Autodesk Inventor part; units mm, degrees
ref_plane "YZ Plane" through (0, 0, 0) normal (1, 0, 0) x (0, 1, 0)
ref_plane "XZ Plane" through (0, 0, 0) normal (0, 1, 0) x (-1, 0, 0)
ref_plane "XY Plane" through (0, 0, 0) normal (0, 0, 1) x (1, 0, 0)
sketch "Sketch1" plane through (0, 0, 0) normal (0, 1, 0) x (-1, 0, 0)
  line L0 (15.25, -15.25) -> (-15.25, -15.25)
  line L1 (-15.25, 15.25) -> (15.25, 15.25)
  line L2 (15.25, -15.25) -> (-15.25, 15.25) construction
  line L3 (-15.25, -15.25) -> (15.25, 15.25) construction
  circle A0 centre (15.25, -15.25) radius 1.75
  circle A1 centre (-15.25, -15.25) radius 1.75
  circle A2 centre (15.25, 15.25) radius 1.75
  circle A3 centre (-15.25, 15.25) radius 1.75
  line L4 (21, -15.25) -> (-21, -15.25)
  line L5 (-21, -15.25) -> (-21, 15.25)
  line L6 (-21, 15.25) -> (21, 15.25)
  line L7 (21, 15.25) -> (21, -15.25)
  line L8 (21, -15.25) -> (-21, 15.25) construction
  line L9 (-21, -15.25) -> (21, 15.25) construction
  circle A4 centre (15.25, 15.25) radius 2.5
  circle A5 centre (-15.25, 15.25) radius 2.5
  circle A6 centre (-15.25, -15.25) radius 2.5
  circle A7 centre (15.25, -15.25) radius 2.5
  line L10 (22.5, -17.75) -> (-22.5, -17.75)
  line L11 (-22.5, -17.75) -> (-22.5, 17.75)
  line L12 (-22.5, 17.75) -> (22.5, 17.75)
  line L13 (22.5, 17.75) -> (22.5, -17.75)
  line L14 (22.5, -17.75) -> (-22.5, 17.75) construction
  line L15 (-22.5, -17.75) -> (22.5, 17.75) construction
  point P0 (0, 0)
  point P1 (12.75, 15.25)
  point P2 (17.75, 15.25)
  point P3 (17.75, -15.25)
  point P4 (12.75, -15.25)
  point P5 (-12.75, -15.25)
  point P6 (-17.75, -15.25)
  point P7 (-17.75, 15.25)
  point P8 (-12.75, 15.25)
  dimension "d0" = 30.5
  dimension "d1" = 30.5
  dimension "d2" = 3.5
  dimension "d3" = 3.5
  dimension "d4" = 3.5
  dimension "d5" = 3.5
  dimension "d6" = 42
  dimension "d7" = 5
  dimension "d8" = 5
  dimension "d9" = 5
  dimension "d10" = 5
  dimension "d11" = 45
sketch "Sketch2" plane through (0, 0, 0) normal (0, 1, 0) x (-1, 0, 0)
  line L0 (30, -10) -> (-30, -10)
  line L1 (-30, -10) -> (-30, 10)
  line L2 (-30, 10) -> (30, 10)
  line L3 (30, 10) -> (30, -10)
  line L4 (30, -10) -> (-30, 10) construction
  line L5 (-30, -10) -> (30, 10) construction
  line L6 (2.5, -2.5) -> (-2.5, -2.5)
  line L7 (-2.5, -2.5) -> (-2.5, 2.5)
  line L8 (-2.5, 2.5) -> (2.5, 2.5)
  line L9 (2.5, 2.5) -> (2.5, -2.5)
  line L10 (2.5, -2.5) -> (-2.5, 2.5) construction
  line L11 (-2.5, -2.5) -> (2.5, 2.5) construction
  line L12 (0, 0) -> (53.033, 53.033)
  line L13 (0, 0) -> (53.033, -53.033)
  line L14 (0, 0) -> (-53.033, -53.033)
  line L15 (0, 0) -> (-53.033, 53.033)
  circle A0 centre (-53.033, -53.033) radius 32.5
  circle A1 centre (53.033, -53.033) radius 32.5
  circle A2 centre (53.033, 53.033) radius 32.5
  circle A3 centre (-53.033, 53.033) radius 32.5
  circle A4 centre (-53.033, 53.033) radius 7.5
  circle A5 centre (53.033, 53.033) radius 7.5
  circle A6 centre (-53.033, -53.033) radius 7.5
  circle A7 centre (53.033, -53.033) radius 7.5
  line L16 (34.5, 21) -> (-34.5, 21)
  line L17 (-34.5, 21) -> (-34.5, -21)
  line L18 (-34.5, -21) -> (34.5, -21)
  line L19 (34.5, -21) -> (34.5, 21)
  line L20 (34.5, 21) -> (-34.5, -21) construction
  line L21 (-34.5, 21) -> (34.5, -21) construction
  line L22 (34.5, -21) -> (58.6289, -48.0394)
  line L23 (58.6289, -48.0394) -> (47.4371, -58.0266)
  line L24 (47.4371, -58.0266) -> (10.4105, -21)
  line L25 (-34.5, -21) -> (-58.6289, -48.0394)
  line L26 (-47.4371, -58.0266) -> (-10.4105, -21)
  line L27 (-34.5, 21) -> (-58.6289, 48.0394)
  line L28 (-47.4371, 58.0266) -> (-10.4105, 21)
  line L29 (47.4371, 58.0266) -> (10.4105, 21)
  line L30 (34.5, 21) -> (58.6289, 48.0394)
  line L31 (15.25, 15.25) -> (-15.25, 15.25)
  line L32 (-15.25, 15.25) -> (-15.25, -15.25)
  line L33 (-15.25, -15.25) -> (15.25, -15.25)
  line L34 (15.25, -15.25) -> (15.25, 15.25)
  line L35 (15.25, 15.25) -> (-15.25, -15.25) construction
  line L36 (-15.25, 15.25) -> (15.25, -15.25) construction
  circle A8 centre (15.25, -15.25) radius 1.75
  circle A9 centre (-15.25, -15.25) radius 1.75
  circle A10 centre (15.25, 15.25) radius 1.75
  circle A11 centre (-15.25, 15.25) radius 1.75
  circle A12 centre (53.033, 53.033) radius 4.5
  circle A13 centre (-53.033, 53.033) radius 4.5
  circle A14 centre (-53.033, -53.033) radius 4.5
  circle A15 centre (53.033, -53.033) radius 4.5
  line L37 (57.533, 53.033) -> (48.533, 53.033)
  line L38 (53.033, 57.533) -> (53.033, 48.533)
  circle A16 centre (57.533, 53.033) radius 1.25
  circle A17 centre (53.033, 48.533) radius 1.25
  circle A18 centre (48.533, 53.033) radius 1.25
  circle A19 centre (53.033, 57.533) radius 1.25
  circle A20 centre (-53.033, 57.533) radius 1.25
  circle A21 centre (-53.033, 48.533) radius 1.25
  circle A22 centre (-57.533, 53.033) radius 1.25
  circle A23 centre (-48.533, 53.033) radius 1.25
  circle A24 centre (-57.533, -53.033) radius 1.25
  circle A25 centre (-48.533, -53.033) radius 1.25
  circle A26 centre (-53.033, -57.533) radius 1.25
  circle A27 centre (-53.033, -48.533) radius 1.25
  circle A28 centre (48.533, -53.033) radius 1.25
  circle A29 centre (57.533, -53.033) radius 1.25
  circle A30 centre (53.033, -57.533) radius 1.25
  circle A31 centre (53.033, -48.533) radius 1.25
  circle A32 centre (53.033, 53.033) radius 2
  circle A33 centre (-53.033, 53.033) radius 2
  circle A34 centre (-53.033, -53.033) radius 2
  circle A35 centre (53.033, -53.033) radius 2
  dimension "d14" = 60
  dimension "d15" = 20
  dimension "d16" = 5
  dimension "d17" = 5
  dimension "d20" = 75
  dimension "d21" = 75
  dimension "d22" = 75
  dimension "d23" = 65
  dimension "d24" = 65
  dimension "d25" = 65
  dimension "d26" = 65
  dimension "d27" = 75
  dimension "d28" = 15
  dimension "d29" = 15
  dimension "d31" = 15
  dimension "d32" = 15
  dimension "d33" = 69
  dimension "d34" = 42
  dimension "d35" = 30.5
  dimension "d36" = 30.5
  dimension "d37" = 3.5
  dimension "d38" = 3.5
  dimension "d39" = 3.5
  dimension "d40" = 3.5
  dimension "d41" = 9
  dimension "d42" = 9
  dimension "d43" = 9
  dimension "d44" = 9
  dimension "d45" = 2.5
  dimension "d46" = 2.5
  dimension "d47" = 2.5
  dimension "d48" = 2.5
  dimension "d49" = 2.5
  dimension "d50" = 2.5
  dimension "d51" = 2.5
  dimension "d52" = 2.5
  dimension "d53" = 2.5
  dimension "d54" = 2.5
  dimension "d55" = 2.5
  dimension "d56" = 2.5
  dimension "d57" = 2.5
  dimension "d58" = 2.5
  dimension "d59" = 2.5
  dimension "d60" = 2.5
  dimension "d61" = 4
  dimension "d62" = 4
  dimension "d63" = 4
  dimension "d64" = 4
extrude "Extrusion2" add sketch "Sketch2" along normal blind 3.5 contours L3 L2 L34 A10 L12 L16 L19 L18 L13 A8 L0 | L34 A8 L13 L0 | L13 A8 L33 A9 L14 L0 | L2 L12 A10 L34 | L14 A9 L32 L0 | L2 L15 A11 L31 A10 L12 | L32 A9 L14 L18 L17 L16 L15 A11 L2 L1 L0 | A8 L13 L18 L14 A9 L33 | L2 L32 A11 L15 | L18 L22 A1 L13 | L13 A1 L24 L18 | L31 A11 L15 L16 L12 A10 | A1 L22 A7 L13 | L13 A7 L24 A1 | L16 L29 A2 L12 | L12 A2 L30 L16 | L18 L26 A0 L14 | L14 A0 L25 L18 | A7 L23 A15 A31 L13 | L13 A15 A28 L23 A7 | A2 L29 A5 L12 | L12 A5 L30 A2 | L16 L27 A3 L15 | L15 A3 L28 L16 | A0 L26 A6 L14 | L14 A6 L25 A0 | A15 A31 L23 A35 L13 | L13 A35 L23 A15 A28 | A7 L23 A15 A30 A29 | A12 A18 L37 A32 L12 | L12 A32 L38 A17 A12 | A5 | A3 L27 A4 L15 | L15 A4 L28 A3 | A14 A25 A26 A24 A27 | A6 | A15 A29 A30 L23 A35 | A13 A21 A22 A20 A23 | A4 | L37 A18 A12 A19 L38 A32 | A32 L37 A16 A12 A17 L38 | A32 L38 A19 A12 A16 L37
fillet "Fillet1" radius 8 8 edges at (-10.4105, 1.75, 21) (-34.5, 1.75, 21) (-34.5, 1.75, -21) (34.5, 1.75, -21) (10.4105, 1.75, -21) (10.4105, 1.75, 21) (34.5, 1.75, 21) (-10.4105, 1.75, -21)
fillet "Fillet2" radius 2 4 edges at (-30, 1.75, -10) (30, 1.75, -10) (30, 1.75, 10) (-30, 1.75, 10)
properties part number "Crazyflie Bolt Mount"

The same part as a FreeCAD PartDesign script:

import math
import FreeCAD as App
import Part
import Sketcher
from FreeCAD import Vector


def edges_at(feature, points):
    """Names of the edges that pass closest to the given points."""
    edges = feature.Shape.Edges
    near = lambda p: min(range(len(edges)), key=lambda i: edges[i].distToShape(Part.Vertex(*p))[0])
    return sorted({f"Edge{near(p) + 1}" for p in points})

doc = App.newDocument("Part")
body = doc.addObject("PartDesign::Body", "Body")

sketch1 = body.newObject("Sketcher::SketchObject", "Sketch")
sketch1.AttachmentSupport = (doc.getObject("XZ_Plane"), [""])
sketch1.MapMode = "FlatFace"
sketch1.addGeometry([
    Part.LineSegment(Vector(-34.5, -21, 0), Vector(-34.5, 21, 0)),
    Part.LineSegment(Vector(-34.5, 21, 0), Vector(-58.6, 48, 0)),
    Part.ArcOfCircle(Part.Circle(Vector(-53, 53, 0), Vector(0, 0, 1), 7.5), math.radians(42), math.radians(222)),
    Part.LineSegment(Vector(-47.4, 58, 0), Vector(-10.4, 21, 0)),
    Part.LineSegment(Vector(-10.4, 21, 0), Vector(10.4, 21, 0)),
    Part.LineSegment(Vector(10.4, 21, 0), Vector(47.4, 58, 0)),
    Part.ArcOfCircle(Part.Circle(Vector(53, 53, 0), Vector(0, 0, 1), 7.5), math.radians(-42), math.radians(138)),
    Part.LineSegment(Vector(58.6, 48, 0), Vector(34.5, 21, 0)),
    Part.LineSegment(Vector(34.5, 21, 0), Vector(34.5, -21, 0)),
    Part.LineSegment(Vector(34.5, -21, 0), Vector(58.6, -48, 0)),
    Part.ArcOfCircle(Part.Circle(Vector(53, -53, 0), Vector(0, 0, 1), 7.5), math.radians(-138), math.radians(42)),
    Part.LineSegment(Vector(47.4, -58, 0), Vector(10.4, -21, 0)),
    Part.LineSegment(Vector(10.4, -21, 0), Vector(-10.4, -21, 0)),
    Part.LineSegment(Vector(-10.4, -21, 0), Vector(-47.4, -58, 0)),
    Part.ArcOfCircle(Part.Circle(Vector(-53, -53, 0), Vector(0, 0, 1), 7.5), math.radians(138), math.radians(318)),
    Part.LineSegment(Vector(-58.6, -48, 0), Vector(-34.5, -21, 0)),
    Part.LineSegment(Vector(-30, 10, 0), Vector(-30, -10, 0)),
    Part.LineSegment(Vector(-30, -10, 0), Vector(30, -10, 0)),
    Part.LineSegment(Vector(30, -10, 0), Vector(30, 10, 0)),
    Part.LineSegment(Vector(30, 10, 0), Vector(-30, 10, 0)),
    Part.Circle(Vector(-15.2, 15.2, 0), Vector(0, 0, 1), 1.8),
    Part.Circle(Vector(-15.2, -15.2, 0), Vector(0, 0, 1), 1.8),
    Part.Circle(Vector(15.2, 15.2, 0), Vector(0, 0, 1), 1.8),
    Part.Circle(Vector(15.2, -15.2, 0), Vector(0, 0, 1), 1.8),
    Part.Circle(Vector(-53, 48.5, 0), Vector(0, 0, 1), 1.2),
    Part.Circle(Vector(-57.5, 53, 0), Vector(0, 0, 1), 1.2),
    Part.Circle(Vector(-53, 57.5, 0), Vector(0, 0, 1), 1.2),
    Part.Circle(Vector(-48.5, 53, 0), Vector(0, 0, 1), 1.2),
    Part.Circle(Vector(-53, -48.5, 0), Vector(0, 0, 1), 1.2),
    Part.Circle(Vector(53, 48.5, 0), Vector(0, 0, 1), 1.2),
    Part.Circle(Vector(48.5, 53, 0), Vector(0, 0, 1), 1.2),
    Part.Circle(Vector(53, 57.5, 0), Vector(0, 0, 1), 1.2),
    Part.Circle(Vector(57.5, 53, 0), Vector(0, 0, 1), 1.2),
    Part.Circle(Vector(-53, 53, 0), Vector(0, 0, 1), 2),
    Part.Circle(Vector(-48.5, -53, 0), Vector(0, 0, 1), 1.2),
    Part.Circle(Vector(-53, -57.5, 0), Vector(0, 0, 1), 1.2),
    Part.Circle(Vector(-57.5, -53, 0), Vector(0, 0, 1), 1.2),
    Part.Circle(Vector(-53, -53, 0), Vector(0, 0, 1), 2),
    Part.Circle(Vector(48.5, -53, 0), Vector(0, 0, 1), 1.2),
    Part.Circle(Vector(53, -48.5, 0), Vector(0, 0, 1), 1.2),
    Part.Circle(Vector(57.5, -53, 0), Vector(0, 0, 1), 1.2),
    Part.Circle(Vector(53, -57.5, 0), Vector(0, 0, 1), 1.2),
    Part.Circle(Vector(53, 53, 0), Vector(0, 0, 1), 2),
    Part.Circle(Vector(53, -53, 0), Vector(0, 0, 1), 2),
], False)
sketch1.addConstraint([
    Sketcher.Constraint("Coincident", 0, 2, 1, 1),
    Sketcher.Constraint("Tangent", 1, 2, 2, 2),
    Sketcher.Constraint("Coincident", 2, 1, 3, 1),
    Sketcher.Constraint("Coincident", 3, 2, 4, 1),
    Sketcher.Constraint("Coincident", 4, 2, 5, 1),
    Sketcher.Constraint("Coincident", 5, 2, 6, 2),
    Sketcher.Constraint("Tangent", 6, 1, 7, 1),
    Sketcher.Constraint("Coincident", 7, 2, 8, 1),
    Sketcher.Constraint("Coincident", 8, 2, 9, 1),
    Sketcher.Constraint("Tangent", 9, 2, 10, 2),
    Sketcher.Constraint("Coincident", 10, 1, 11, 1),
    Sketcher.Constraint("Coincident", 11, 2, 12, 1),
    Sketcher.Constraint("Coincident", 12, 2, 13, 1),
    Sketcher.Constraint("Coincident", 13, 2, 14, 2),
    Sketcher.Constraint("Tangent", 14, 1, 15, 1),
    Sketcher.Constraint("Coincident", 15, 2, 0, 1),
    Sketcher.Constraint("Coincident", 16, 2, 17, 1),
    Sketcher.Constraint("Coincident", 17, 2, 18, 1),
    Sketcher.Constraint("Coincident", 18, 2, 19, 1),
    Sketcher.Constraint("Coincident", 19, 2, 16, 1),
    Sketcher.Constraint("Vertical", 0),
    Sketcher.Constraint("Horizontal", 4),
    Sketcher.Constraint("Vertical", 8),
    Sketcher.Constraint("Horizontal", 12),
    Sketcher.Constraint("Vertical", 16),
    Sketcher.Constraint("Horizontal", 17),
    Sketcher.Constraint("Vertical", 18),
    Sketcher.Constraint("Horizontal", 19),
    Sketcher.Constraint("Coincident", 33, 3, 2, 3),
    Sketcher.Constraint("Coincident", 37, 3, 14, 3),
    Sketcher.Constraint("Coincident", 42, 3, 6, 3),
    Sketcher.Constraint("Coincident", 43, 3, 10, 3),
    Sketcher.Constraint("Equal", 2, 6),
    Sketcher.Constraint("Equal", 6, 10),
    Sketcher.Constraint("Equal", 10, 14),
    Sketcher.Constraint("Equal", 20, 21),
    Sketcher.Constraint("Equal", 21, 22),
    Sketcher.Constraint("Equal", 22, 23),
    Sketcher.Constraint("Equal", 24, 25),
    Sketcher.Constraint("Equal", 25, 26),
    Sketcher.Constraint("Equal", 26, 27),
    Sketcher.Constraint("Equal", 27, 28),
    Sketcher.Constraint("Equal", 28, 29),
    Sketcher.Constraint("Equal", 29, 30),
    Sketcher.Constraint("Equal", 30, 31),
    Sketcher.Constraint("Equal", 31, 32),
    Sketcher.Constraint("Equal", 32, 34),
    Sketcher.Constraint("Equal", 34, 35),
    Sketcher.Constraint("Equal", 35, 36),
    Sketcher.Constraint("Equal", 33, 37),
    Sketcher.Constraint("Equal", 36, 38),
    Sketcher.Constraint("Equal", 38, 39),
    Sketcher.Constraint("Equal", 39, 40),
    Sketcher.Constraint("Equal", 40, 41),
    Sketcher.Constraint("Equal", 37, 42),
    Sketcher.Constraint("Equal", 42, 43),
    Sketcher.Constraint("Symmetric", 2, 3, 10, 3, -1, 1),
    Sketcher.Constraint("Symmetric", 6, 3, 14, 3, -1, 1),
    Sketcher.Constraint("Symmetric", 21, 3, 22, 3, -1, 1),
    Sketcher.Constraint("Symmetric", 20, 3, 23, 3, -1, 1),
    Sketcher.Constraint("Symmetric", 28, 3, 29, 3, -1, 1),
    Sketcher.Constraint("Symmetric", 30, 3, 34, 3, -1, 1),
    Sketcher.Constraint("Symmetric", 31, 3, 35, 3, -1, 1),
    Sketcher.Constraint("Symmetric", 32, 3, 36, 3, -1, 1),
    Sketcher.Constraint("Symmetric", 27, 3, 38, 3, -1, 1),
    Sketcher.Constraint("Symmetric", 24, 3, 39, 3, -1, 1),
    Sketcher.Constraint("Symmetric", 25, 3, 40, 3, -1, 1),
    Sketcher.Constraint("Symmetric", 26, 3, 41, 3, -1, 1),
    Sketcher.Constraint("Symmetric", 0, 2, 8, 2, -1, 1),
    Sketcher.Constraint("Symmetric", 3, 2, 11, 2, -1, 1),
    Sketcher.Constraint("Symmetric", 16, 2, 18, 2, -1, 1),
    Sketcher.Constraint("Symmetric", 2, 3, 6, 3, -2),
    Sketcher.Constraint("Symmetric", 20, 3, 22, 3, -2),
    Sketcher.Constraint("Symmetric", 24, 3, 29, 3, -2),
    Sketcher.Constraint("Symmetric", 27, 3, 30, 3, -2),
    Sketcher.Constraint("Symmetric", 26, 3, 31, 3, -2),
    Sketcher.Constraint("Symmetric", 25, 3, 32, 3, -2),
    Sketcher.Constraint("Perpendicular", 3, 5),
    Sketcher.Constraint("Perpendicular", 5, 11),
    Sketcher.Constraint("Perpendicular", 11, 13),
    Sketcher.Constraint("Parallel", 7, 15),
    Sketcher.Constraint("Horizontal", 6, 3, 25, 3),
    Sketcher.Constraint("Horizontal", 25, 3, 27, 3),
    Sketcher.Constraint("Horizontal", 0, 2, 3, 2),
    Sketcher.Constraint("Horizontal", 2, 1, 5, 2),
    Sketcher.Constraint("Horizontal", 1, 2, 6, 1),
    Sketcher.Constraint("Horizontal", 10, 1, 13, 2),
    Sketcher.Constraint("Vertical", 14, 3, 24, 3),
    Sketcher.Constraint("Vertical", 24, 3, 26, 3),
    Sketcher.Constraint("Vertical", 4, 2, 11, 2),
    Sketcher.Constraint("Diameter", 33, 4.0),
    Sketcher.Constraint("Diameter", 20, 3.5),
    Sketcher.Constraint("Diameter", 24, 2.5),
    Sketcher.Constraint("Radius", 2, 7.5),
    Sketcher.Constraint("DistanceX", 17, 1, 17, 2, 60.0),
    Sketcher.Constraint("DistanceY", 0, 1, 0, 2, 42.0),
    Sketcher.Constraint("DistanceY", 16, 2, 16, 1, 20.0),
    Sketcher.Constraint("DistanceY", 24, 3, 26, 3, 9.0),
    Sketcher.Constraint("DistanceX", 25, 3, 27, 3, 9.0),
    Sketcher.Constraint("DistanceY", 21, 3, 20, 3, 30.5),
    Sketcher.Constraint("DistanceX", 20, 3, 22, 3, 30.5),
    Sketcher.Constraint("DistanceX", 0, 2, -1, 1, 34.5),
    Sketcher.Constraint("DistanceY", 24, 3, 2, 3, 4.5),
    Sketcher.Constraint("DistanceX", 25, 3, 2, 3, 4.5),
    Sketcher.Constraint("Distance", 1, 36.24),
    Sketcher.Constraint("DistanceX", 4, 1, 4, 2, 20.821),
    Sketcher.Constraint("DistanceX", 2, 3, -1, 1, 53.033),
])
pad1 = body.newObject("PartDesign::Pad", "Pad")
pad1.Profile = sketch1
pad1.Length = 3.5
pad1.Reversed = True
doc.recompute()

fillet = body.newObject("PartDesign::Fillet", "Fillet")
fillet.Base = (pad1, edges_at(pad1, [
    (-10.411, 1.75, 21),
    (-34.5, 1.75, 21),
    (-34.5, 1.75, -21),
    (34.5, 1.75, -21),
    (10.411, 1.75, -21),
    (10.411, 1.75, 21),
    (34.5, 1.75, 21),
    (-10.411, 1.75, -21),
]))
fillet.Radius = 8
doc.recompute()

fillet2 = body.newObject("PartDesign::Fillet", "Fillet001")
fillet2.Base = (fillet, edges_at(fillet, [
    (-30, 1.75, -10),
    (30, 1.75, -10),
    (30, 1.75, 10),
    (-30, 1.75, 10),
]))
fillet2.Radius = 2

doc.recompute()
